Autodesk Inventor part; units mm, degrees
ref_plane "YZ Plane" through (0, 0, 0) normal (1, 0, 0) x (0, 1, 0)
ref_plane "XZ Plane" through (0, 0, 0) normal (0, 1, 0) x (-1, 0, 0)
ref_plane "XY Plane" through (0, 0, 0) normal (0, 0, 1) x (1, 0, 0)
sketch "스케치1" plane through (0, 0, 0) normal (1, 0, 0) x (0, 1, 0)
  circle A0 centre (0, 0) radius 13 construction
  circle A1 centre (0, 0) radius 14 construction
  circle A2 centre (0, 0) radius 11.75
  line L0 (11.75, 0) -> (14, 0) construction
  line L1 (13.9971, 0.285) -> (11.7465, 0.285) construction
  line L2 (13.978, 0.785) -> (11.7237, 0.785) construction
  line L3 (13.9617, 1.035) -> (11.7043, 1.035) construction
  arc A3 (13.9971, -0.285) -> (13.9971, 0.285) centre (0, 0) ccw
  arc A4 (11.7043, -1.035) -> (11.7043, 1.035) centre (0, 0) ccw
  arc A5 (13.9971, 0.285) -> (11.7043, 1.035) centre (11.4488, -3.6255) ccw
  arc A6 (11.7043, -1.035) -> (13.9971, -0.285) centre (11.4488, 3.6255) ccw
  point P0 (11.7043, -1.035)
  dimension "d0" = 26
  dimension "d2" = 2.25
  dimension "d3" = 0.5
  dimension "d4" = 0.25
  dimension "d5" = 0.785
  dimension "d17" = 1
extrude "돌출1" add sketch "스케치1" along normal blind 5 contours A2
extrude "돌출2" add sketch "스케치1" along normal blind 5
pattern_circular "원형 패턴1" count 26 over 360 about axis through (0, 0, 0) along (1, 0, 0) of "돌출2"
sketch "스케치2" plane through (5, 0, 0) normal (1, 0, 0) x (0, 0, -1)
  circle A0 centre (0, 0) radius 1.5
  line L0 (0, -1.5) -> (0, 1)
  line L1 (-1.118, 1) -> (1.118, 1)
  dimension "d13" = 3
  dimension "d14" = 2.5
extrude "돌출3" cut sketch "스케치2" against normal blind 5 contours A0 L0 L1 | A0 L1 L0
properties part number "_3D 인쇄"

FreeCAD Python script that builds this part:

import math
import FreeCAD as App
import Part
import Sketcher
from FreeCAD import Vector

doc = App.newDocument("Part")
body = doc.addObject("PartDesign::Body", "Body")

# Sketch on YZ plane
sketch1 = body.newObject("Sketcher::SketchObject", "Sketch")
sketch1.AttachmentSupport = (doc.getObject("YZ_Plane"), [""])
sketch1.MapMode = "FlatFace"
sketch1.addGeometry(Part.Circle(Vector(0, 0, 0), Vector(0, 0, 1), 12), False)
sketch1.addConstraint(Sketcher.Constraint("Coincident", 0, 3, -1, 1))
sketch1.addConstraint(Sketcher.Constraint("Diameter", 0, 23.5))
pad1 = body.newObject("PartDesign::Pad", "Pad")
pad1.Profile = sketch1
pad1.Length = 5

# Sketch on YZ plane
sketch2 = body.newObject("Sketcher::SketchObject", "Sketch001")
sketch2.AttachmentSupport = (doc.getObject("YZ_Plane"), [""])
sketch2.MapMode = "FlatFace"
sketch2.addGeometry(Part.ArcOfCircle(Part.Circle(Vector(0, 0, 0), Vector(0, 0, 1), 11.8), math.radians(5), math.radians(355)), False)
sketch2.addGeometry(Part.ArcOfCircle(Part.Circle(Vector(11.4, 3.6, 0), Vector(0, 0, 1), 4.7), math.radians(-87), math.radians(-57)), False)
sketch2.addGeometry(Part.ArcOfCircle(Part.Circle(Vector(0, 0, 0), Vector(0, 0, 1), 14), math.radians(-1.17), math.radians(1.17)), False)
sketch2.addGeometry(Part.ArcOfCircle(Part.Circle(Vector(11.4, -3.6, 0), Vector(0, 0, 1), 4.7), math.radians(57), math.radians(87)), False)
sketch2.addConstraint(Sketcher.Constraint("Coincident", 0, 2, 1, 1))
sketch2.addConstraint(Sketcher.Constraint("Coincident", 1, 2, 2, 1))
sketch2.addConstraint(Sketcher.Constraint("Coincident", 2, 2, 3, 1))
sketch2.addConstraint(Sketcher.Constraint("Coincident", 3, 2, 0, 1))
sketch2.addConstraint(Sketcher.Constraint("Coincident", 0, 3, -1, 1))
sketch2.addConstraint(Sketcher.Constraint("Coincident", 2, 3, -1, 1))
sketch2.addConstraint(Sketcher.Constraint("Equal", 1, 3))
sketch2.addConstraint(Sketcher.Constraint("Symmetric", 1, 3, 3, 3, -1))
sketch2.addConstraint(Sketcher.Constraint("Radius", 2, 14.0))
sketch2.addConstraint(Sketcher.Constraint("Radius", 0, 11.75))
sketch2.addConstraint(Sketcher.Constraint("Radius", 1, 4.6675))
sketch2.addConstraint(Sketcher.Constraint("DistanceY", 0, 2, 1, 2, 0.75))
sketch2.addConstraint(Sketcher.Constraint("DistanceY", 1, 2, 2, 2, 0.57))
pad2 = body.newObject("PartDesign::Pad", "Pad001")
pad2.Profile = sketch2
pad2.Length = 5
doc.recompute()

polarpattern = body.newObject("PartDesign::PolarPattern", "PolarPattern")
polarpattern.Originals = [pad2]
polarpattern.Axis = (doc.getObject("X_Axis"), [""])
polarpattern.Angle = 360
polarpattern.Occurrences = 26
body.Tip = polarpattern

# Sketch on YZ plane
sketch3 = body.newObject("Sketcher::SketchObject", "Sketch002")
sketch3.AttachmentSupport = (doc.getObject("YZ_Plane"), [""])
sketch3.MapMode = "FlatFace"
sketch3.AttachmentOffset = App.Placement(Vector(0, 0, 5), App.Rotation())
sketch3.addGeometry(Part.LineSegment(Vector(1, -1.1, 0), Vector(1, 1.1, 0)), False)
sketch3.addGeometry(Part.ArcOfCircle(Part.Circle(Vector(0, 0, 0), Vector(0, 0, 1), 1.5), math.radians(48), math.radians(312)), False)
sketch3.addConstraint(Sketcher.Constraint("Coincident", 0, 1, 1, 2))
sketch3.addConstraint(Sketcher.Constraint("Coincident", 1, 1, 0, 2))
sketch3.addConstraint(Sketcher.Constraint("Vertical", 0))
sketch3.addConstraint(Sketcher.Constraint("Coincident", 1, 3, -1, 1))
sketch3.addConstraint(Sketcher.Constraint("Radius", 1, 1.5))
sketch3.addConstraint(Sketcher.Constraint("DistanceX", -1, 1, 0, 1, 1.0))
pocket1 = body.newObject("PartDesign::Pocket", "Pocket")
pocket1.Profile = sketch3
pocket1.Length = 5

doc.recompute()
